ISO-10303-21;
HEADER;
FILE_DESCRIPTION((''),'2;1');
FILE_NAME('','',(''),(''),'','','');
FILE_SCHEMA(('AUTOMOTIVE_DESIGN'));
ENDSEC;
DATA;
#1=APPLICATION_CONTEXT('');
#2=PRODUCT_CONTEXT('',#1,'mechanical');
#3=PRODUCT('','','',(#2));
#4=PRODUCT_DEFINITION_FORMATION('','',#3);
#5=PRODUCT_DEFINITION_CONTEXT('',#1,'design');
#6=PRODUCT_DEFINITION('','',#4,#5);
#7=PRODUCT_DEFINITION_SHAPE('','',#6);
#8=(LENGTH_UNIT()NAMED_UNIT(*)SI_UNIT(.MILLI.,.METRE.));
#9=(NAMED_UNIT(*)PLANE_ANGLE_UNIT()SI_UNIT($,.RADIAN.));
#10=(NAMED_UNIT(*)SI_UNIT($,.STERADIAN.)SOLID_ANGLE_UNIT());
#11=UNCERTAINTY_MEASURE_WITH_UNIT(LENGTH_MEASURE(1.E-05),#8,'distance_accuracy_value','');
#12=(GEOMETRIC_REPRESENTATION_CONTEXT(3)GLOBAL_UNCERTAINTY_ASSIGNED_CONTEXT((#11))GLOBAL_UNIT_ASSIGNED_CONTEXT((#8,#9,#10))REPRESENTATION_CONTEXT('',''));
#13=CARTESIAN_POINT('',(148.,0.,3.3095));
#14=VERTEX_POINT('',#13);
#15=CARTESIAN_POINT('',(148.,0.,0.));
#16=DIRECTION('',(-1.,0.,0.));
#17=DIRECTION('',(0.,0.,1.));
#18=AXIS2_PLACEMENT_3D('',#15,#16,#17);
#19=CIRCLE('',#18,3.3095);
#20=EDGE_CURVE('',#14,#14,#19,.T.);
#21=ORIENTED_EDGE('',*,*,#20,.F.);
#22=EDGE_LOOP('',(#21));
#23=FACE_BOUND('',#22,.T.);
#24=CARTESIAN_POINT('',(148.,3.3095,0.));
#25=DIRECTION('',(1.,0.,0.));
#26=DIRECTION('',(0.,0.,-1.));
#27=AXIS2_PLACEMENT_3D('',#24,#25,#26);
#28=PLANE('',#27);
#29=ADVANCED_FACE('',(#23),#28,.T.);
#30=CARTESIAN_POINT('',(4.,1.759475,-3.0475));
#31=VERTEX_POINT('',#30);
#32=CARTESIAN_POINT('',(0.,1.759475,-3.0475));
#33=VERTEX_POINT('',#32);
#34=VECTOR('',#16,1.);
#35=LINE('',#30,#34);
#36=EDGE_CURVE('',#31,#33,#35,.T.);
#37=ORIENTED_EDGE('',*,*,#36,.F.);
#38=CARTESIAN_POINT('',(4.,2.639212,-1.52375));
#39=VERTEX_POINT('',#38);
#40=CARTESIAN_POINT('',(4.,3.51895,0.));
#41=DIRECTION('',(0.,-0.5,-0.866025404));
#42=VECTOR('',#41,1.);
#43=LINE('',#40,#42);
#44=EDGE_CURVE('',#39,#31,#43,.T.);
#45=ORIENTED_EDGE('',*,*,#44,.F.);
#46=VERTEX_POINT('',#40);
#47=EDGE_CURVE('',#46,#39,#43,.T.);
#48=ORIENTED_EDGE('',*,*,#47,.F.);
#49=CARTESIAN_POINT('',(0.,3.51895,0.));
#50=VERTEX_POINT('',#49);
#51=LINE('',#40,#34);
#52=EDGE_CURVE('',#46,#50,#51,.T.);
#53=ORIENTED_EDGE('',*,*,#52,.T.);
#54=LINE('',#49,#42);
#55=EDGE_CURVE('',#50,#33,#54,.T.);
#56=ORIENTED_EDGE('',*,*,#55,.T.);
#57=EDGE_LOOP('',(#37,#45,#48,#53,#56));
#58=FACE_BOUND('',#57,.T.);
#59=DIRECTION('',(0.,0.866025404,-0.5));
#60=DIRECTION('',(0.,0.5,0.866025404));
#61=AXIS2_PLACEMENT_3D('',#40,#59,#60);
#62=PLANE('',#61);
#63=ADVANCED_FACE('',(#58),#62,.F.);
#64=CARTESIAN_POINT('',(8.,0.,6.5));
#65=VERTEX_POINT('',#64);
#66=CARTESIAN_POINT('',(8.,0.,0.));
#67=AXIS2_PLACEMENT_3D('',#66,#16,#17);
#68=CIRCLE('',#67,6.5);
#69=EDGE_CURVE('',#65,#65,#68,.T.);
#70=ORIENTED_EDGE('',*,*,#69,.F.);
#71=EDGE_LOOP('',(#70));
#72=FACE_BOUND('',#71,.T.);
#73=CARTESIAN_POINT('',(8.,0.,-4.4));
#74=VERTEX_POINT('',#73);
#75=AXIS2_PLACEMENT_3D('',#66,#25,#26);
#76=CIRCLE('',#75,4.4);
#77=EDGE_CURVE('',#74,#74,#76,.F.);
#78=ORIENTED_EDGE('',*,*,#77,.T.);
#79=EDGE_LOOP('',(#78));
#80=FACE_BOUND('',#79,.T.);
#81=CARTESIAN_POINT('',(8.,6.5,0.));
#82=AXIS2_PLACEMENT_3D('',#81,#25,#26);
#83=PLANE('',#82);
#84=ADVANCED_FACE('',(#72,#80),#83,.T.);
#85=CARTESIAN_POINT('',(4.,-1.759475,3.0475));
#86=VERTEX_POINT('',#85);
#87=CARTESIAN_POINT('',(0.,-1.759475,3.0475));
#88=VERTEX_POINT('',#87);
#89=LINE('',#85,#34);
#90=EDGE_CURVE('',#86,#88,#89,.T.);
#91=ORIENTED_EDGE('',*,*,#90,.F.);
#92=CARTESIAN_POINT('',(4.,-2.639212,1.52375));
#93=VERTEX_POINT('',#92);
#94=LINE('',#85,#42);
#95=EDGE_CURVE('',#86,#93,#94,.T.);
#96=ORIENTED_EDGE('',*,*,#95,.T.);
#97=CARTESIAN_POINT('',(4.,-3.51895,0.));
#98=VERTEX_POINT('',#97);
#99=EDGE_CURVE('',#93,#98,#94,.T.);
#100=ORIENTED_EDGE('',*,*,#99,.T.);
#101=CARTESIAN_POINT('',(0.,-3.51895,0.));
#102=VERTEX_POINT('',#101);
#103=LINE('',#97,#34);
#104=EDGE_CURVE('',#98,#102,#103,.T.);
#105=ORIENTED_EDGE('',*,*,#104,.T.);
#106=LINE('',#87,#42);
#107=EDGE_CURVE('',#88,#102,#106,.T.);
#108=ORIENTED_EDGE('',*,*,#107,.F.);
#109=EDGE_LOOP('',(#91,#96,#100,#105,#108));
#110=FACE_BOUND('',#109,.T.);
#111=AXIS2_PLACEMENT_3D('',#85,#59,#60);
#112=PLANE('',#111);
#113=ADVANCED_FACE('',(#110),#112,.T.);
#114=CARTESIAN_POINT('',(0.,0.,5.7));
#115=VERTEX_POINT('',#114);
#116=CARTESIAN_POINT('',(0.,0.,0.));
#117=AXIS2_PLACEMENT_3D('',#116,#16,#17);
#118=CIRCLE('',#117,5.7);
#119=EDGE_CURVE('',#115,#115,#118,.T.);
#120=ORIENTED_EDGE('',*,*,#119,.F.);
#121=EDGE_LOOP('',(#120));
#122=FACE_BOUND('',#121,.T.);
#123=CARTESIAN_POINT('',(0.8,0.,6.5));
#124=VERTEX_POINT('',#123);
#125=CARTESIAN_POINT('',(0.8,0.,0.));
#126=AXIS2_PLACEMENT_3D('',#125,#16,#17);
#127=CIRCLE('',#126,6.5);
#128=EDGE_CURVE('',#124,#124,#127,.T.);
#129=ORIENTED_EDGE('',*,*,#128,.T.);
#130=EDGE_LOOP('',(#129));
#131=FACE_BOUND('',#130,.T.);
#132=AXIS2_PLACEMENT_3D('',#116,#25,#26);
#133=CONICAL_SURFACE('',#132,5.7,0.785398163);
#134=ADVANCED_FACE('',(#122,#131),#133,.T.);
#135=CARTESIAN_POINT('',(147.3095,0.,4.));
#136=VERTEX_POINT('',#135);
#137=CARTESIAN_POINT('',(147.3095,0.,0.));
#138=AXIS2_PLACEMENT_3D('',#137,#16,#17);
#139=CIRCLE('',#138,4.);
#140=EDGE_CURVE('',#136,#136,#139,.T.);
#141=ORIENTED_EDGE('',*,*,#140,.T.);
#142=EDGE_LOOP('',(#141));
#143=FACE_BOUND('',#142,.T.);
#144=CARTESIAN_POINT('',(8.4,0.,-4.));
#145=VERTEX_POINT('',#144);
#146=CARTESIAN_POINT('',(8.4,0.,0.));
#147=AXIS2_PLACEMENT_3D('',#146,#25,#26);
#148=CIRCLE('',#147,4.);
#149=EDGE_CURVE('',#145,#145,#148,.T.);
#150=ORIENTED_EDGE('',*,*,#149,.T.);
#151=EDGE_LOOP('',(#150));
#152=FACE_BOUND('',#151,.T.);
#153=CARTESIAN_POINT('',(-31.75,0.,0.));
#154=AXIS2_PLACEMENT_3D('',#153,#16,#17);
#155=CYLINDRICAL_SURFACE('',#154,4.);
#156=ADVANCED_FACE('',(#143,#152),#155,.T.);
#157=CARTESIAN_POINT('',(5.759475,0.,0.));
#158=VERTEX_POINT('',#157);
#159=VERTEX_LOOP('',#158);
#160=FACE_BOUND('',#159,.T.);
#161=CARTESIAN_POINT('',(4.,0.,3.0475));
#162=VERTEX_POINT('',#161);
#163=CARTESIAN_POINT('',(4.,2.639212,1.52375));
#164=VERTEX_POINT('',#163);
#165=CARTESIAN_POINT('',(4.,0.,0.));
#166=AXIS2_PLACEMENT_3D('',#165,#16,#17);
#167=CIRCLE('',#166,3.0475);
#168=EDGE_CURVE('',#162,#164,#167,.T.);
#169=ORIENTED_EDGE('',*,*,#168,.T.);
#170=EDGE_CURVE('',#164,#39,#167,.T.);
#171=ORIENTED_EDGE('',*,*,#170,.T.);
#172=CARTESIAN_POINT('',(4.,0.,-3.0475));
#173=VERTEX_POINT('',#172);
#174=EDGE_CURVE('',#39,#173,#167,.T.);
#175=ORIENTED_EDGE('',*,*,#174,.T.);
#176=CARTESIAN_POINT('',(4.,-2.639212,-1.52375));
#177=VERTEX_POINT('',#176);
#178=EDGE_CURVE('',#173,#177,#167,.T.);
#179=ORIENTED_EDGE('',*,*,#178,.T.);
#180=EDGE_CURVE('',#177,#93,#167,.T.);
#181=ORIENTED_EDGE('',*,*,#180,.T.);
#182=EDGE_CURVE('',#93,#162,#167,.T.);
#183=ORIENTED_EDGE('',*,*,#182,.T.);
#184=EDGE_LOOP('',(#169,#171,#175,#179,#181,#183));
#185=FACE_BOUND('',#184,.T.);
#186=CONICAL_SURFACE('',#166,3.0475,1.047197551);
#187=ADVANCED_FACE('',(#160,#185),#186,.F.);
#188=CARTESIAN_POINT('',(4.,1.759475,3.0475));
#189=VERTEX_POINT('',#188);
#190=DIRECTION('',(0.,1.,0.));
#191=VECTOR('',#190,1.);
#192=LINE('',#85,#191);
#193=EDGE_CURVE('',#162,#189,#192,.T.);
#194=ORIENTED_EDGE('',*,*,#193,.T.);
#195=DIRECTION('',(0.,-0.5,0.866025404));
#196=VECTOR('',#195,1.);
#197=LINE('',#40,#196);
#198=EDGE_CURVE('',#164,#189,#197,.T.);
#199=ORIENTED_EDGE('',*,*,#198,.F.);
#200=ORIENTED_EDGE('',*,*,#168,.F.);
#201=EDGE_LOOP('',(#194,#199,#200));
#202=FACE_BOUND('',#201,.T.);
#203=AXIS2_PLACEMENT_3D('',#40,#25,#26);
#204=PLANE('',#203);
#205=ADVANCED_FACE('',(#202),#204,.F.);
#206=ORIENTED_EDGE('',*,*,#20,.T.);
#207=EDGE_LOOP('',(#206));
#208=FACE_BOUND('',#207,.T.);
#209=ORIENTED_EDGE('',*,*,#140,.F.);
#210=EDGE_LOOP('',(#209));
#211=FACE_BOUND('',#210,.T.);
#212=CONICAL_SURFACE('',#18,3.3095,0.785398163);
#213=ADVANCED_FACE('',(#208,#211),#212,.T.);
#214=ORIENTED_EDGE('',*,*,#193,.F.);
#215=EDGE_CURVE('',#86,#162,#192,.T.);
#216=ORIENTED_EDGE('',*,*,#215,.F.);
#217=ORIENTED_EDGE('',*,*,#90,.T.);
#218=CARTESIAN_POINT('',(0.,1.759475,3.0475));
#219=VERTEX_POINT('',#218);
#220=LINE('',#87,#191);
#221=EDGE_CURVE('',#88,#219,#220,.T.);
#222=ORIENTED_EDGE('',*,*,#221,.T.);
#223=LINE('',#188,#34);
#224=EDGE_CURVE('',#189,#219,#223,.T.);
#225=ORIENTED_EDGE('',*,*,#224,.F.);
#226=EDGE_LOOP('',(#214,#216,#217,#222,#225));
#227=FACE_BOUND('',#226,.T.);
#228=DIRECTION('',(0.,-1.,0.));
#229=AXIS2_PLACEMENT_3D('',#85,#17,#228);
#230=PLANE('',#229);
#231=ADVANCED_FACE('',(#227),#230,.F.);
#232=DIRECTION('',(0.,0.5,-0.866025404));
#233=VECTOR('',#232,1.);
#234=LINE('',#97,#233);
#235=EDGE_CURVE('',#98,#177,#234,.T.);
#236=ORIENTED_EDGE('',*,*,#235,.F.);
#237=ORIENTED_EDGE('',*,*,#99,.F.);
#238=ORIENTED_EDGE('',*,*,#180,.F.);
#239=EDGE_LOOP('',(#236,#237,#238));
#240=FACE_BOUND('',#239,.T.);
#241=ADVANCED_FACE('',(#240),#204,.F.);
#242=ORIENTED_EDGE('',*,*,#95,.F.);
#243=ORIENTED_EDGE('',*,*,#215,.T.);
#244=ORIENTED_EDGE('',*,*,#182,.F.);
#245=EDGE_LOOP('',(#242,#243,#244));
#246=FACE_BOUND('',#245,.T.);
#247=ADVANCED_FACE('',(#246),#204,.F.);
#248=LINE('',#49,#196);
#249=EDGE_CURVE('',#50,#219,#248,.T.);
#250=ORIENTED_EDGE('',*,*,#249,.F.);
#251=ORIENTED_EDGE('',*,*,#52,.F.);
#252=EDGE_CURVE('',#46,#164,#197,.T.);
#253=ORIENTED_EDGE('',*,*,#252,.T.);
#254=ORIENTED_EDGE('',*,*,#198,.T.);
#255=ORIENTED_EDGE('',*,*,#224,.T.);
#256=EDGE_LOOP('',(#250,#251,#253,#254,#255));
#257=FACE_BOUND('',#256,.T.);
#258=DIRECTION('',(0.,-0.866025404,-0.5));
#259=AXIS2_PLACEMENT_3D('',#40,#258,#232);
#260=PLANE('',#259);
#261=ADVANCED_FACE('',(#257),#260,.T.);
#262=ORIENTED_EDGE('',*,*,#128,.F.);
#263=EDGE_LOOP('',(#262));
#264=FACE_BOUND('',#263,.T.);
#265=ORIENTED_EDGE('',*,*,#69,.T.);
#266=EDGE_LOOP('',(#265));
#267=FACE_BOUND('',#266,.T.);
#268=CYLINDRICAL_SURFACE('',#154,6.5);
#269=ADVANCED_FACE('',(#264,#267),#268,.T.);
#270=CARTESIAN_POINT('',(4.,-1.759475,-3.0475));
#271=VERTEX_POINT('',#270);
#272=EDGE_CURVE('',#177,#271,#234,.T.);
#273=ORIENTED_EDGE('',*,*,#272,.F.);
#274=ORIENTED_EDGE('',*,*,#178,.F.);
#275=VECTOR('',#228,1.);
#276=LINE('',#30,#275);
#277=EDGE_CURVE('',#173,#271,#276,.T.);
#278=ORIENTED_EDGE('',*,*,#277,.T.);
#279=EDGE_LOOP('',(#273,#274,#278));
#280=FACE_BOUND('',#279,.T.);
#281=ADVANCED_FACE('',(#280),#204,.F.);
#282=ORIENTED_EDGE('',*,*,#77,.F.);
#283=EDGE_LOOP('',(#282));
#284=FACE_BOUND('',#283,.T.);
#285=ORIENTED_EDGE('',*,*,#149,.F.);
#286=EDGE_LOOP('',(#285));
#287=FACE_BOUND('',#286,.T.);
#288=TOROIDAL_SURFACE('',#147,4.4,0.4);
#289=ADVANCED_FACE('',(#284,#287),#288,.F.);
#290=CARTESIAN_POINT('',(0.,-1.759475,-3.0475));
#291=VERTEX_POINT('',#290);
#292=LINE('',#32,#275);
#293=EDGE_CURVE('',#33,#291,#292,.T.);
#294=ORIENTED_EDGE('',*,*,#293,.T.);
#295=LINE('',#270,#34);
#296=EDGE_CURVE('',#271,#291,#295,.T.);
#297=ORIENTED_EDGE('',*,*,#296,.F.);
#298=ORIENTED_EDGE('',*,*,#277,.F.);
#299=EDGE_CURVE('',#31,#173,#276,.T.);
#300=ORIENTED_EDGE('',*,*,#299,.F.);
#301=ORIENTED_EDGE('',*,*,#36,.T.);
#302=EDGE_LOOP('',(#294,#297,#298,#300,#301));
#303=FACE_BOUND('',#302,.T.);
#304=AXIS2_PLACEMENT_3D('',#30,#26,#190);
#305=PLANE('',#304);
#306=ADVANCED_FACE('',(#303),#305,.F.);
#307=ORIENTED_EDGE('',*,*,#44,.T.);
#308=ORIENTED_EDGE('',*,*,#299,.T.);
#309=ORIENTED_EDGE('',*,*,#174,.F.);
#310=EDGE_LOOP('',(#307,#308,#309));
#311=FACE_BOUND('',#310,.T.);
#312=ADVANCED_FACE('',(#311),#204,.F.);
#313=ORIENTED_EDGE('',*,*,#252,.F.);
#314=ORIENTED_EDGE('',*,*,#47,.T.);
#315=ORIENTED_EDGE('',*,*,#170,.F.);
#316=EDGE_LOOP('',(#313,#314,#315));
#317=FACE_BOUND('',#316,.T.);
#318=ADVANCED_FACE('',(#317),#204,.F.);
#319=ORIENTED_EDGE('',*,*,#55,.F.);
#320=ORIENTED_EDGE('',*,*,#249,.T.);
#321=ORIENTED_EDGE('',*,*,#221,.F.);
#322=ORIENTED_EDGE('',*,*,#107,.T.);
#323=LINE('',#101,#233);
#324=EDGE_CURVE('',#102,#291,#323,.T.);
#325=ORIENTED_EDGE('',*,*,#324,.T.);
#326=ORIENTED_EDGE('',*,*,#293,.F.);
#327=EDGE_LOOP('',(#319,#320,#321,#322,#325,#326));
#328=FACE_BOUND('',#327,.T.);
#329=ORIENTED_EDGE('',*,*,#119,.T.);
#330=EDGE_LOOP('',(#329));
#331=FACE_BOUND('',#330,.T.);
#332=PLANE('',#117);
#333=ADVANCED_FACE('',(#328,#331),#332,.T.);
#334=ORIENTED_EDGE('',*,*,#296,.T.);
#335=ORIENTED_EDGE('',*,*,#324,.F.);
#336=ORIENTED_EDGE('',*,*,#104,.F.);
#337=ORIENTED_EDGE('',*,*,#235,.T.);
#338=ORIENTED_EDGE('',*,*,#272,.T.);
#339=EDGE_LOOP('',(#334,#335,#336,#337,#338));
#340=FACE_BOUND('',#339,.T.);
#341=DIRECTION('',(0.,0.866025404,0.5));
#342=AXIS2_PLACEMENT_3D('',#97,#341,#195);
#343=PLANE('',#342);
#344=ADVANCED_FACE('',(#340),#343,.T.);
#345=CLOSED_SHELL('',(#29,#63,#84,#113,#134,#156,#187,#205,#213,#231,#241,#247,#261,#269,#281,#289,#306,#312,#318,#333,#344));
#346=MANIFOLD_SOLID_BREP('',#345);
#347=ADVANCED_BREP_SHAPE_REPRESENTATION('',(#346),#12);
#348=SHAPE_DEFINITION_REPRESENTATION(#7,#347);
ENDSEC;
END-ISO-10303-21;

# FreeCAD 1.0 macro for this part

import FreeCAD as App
import Part
import Sketcher
from FreeCAD import Vector
Q = App.Units.Quantity


def edges_at(feature, points):
    """Names of the edges that pass closest to the given points."""
    edges = feature.Shape.Edges
    near = lambda p: min(range(len(edges)), key=lambda i: edges[i].distToShape(Part.Vertex(*p))[0])
    return sorted({f"Edge{near(p) + 1}" for p in points})


def add_polygon(sketch, points):
    """Adds a closed chain of lines whose ends are joined by coincident constraints."""
    first, n = sketch.GeometryCount, len(points)
    for a, b in zip(points, points[1:] + points[:1]):
        sketch.addGeometry(Part.LineSegment(App.Vector(*a, 0), App.Vector(*b, 0)), False)
    for i in range(n):
        sketch.addConstraint(Sketcher.Constraint("Coincident", first + i, 2, first + (i + 1) % n, 1))

doc = App.newDocument("Part")
params = doc.addObject("Spreadsheet::Sheet", "Params")
for row, (alias, value) in enumerate([
    ("sketch1_width", "148 mm"),
    ("sketch1_width2", "7.2 mm"),
    ("sketch1_height", "5.7 mm"),
    ("sketch1_height2", "2.5 mm"),
    ("revolution_angle", "360 deg"),
    ("fillet_radius", "0.4 mm"),
    ("sketch2_width", "4 mm"),
    ("groove_angle", "360 deg"),
    ("pocket1_length", "4 mm"),
], start=1):
    params.set(f"A{row}", alias)
    params.set(f"B{row}", "=" + value)
    params.setAlias(f"B{row}", alias)

body = doc.addObject("PartDesign::Body", "Body")

sketch1 = body.newObject("Sketcher::SketchObject", "Sketch")
sketch1.AttachmentSupport = (doc.getObject("XY_Plane"), [""])
sketch1.MapMode = "FlatFace"
add_polygon(sketch1, [(0, 5.7), (0, 0), (148, 0), (148, 3.3095), (147.3095, 4), (8, 4), (8, 6.5), (0.8, 6.5)])
sketch1.addConstraint([
    Sketcher.Constraint("Vertical", 0),
    Sketcher.Constraint("Horizontal", 1),
    Sketcher.Constraint("Vertical", 2),
    Sketcher.Constraint("Horizontal", 4),
    Sketcher.Constraint("Vertical", 5),
    Sketcher.Constraint("Horizontal", 6),
    Sketcher.Constraint("Coincident", 0, 2, -1, 1),
    Sketcher.Constraint("Perpendicular", 3, 7),
    Sketcher.Constraint("DistanceX", 1, 1, 1, 2, Q("148 mm")),
    Sketcher.Constraint("Angle", 3, Q("135 deg")),
    Sketcher.Constraint("DistanceX", 6, 2, 6, 1, Q("7.2 mm")),
    Sketcher.Constraint("DistanceY", 0, 2, 0, 1, Q("5.7 mm")),
    Sketcher.Constraint("DistanceY", 5, 1, 5, 2, Q("2.5 mm")),
    Sketcher.Constraint("DistanceY", -1, 1, 3, 2, Q("4 mm")),
    Sketcher.Constraint("DistanceX", 4, 2, 4, 1, Q("139.3095 mm")),
])
sketch1.setExpression("Constraints[16]", "Params.sketch1_width")
sketch1.setExpression("Constraints[18]", "Params.sketch1_width2")
sketch1.setExpression("Constraints[19]", "Params.sketch1_height")
sketch1.setExpression("Constraints[20]", "Params.sketch1_height2")
revolution = body.newObject("PartDesign::Revolution", "Revolution")
revolution.Profile = sketch1
revolution.ReferenceAxis = (sketch1, ["H_Axis"])
revolution.setExpression("Angle", "Params.revolution_angle")
doc.recompute()

fillet = body.newObject("PartDesign::Fillet", "Fillet")
fillet.Base = (revolution, edges_at(revolution, [(8, 0, -4)]))
fillet.setExpression("Radius", "Params.fillet_radius")

sketch2 = body.newObject("Sketcher::SketchObject", "Sketch001")
sketch2.AttachmentSupport = (doc.getObject("XY_Plane"), [""])
sketch2.MapMode = "FlatFace"
add_polygon(sketch2, [(4, 3.0475), (0, 3.0475), (0, 0), (5.759475, 0)])
sketch2.addConstraint([
    Sketcher.Constraint("Horizontal", 0),
    Sketcher.Constraint("Vertical", 1),
    Sketcher.Constraint("Horizontal", 2),
    Sketcher.Constraint("Coincident", 1, 2, -1, 1),
    Sketcher.Constraint("DistanceX", 0, 2, 0, 1, Q("4 mm")),
    Sketcher.Constraint("Angle", 3, Q("120 deg")),
    Sketcher.Constraint("DistanceY", 1, 2, 1, 1, Q("3.0475 mm")),
])
sketch2.setExpression("Constraints[8]", "Params.sketch2_width")
groove = body.newObject("PartDesign::Groove", "Groove")
groove.Profile = sketch2
groove.ReferenceAxis = (sketch2, ["H_Axis"])
groove.setExpression("Angle", "Params.groove_angle")

sketch3 = body.newObject("Sketcher::SketchObject", "Sketch002")
sketch3.AttachmentSupport = (doc.getObject("YZ_Plane"), [""])
sketch3.MapMode = "FlatFace"
add_polygon(sketch3, [(3.51895, 0), (1.759475, -3.0475), (-1.759475, -3.0475), (-3.51895, 0), (-1.759475, 3.0475), (1.759475, 3.0475)])
sketch3.addConstraint([
    Sketcher.Constraint("Horizontal", 1),
    Sketcher.Constraint("Horizontal", 4),
    Sketcher.Constraint("Symmetric", 0, 2, 3, 2, -1, 1),
    Sketcher.Constraint("Symmetric", 2, 2, 5, 2, -1, 1),
    Sketcher.Constraint("PointOnObject", 2, 2, -1),
    Sketcher.Constraint("Parallel", 2, 5),
    Sketcher.Constraint("Vertical", 1, 2, 3, 2),
    Sketcher.Constraint("Angle", 0, Q("-120 deg")),
    Sketcher.Constraint("DistanceY", 1, 2, 3, 2, Q("6.095 mm")),
    Sketcher.Constraint("DistanceX", 1, 2, 1, 1, Q("3.51895 mm")),
])
pocket1 = body.newObject("PartDesign::Pocket", "Pocket")
pocket1.Profile = sketch3
pocket1.setExpression("Length", "Params.pocket1_length")
pocket1.Reversed = True

doc.recompute()
